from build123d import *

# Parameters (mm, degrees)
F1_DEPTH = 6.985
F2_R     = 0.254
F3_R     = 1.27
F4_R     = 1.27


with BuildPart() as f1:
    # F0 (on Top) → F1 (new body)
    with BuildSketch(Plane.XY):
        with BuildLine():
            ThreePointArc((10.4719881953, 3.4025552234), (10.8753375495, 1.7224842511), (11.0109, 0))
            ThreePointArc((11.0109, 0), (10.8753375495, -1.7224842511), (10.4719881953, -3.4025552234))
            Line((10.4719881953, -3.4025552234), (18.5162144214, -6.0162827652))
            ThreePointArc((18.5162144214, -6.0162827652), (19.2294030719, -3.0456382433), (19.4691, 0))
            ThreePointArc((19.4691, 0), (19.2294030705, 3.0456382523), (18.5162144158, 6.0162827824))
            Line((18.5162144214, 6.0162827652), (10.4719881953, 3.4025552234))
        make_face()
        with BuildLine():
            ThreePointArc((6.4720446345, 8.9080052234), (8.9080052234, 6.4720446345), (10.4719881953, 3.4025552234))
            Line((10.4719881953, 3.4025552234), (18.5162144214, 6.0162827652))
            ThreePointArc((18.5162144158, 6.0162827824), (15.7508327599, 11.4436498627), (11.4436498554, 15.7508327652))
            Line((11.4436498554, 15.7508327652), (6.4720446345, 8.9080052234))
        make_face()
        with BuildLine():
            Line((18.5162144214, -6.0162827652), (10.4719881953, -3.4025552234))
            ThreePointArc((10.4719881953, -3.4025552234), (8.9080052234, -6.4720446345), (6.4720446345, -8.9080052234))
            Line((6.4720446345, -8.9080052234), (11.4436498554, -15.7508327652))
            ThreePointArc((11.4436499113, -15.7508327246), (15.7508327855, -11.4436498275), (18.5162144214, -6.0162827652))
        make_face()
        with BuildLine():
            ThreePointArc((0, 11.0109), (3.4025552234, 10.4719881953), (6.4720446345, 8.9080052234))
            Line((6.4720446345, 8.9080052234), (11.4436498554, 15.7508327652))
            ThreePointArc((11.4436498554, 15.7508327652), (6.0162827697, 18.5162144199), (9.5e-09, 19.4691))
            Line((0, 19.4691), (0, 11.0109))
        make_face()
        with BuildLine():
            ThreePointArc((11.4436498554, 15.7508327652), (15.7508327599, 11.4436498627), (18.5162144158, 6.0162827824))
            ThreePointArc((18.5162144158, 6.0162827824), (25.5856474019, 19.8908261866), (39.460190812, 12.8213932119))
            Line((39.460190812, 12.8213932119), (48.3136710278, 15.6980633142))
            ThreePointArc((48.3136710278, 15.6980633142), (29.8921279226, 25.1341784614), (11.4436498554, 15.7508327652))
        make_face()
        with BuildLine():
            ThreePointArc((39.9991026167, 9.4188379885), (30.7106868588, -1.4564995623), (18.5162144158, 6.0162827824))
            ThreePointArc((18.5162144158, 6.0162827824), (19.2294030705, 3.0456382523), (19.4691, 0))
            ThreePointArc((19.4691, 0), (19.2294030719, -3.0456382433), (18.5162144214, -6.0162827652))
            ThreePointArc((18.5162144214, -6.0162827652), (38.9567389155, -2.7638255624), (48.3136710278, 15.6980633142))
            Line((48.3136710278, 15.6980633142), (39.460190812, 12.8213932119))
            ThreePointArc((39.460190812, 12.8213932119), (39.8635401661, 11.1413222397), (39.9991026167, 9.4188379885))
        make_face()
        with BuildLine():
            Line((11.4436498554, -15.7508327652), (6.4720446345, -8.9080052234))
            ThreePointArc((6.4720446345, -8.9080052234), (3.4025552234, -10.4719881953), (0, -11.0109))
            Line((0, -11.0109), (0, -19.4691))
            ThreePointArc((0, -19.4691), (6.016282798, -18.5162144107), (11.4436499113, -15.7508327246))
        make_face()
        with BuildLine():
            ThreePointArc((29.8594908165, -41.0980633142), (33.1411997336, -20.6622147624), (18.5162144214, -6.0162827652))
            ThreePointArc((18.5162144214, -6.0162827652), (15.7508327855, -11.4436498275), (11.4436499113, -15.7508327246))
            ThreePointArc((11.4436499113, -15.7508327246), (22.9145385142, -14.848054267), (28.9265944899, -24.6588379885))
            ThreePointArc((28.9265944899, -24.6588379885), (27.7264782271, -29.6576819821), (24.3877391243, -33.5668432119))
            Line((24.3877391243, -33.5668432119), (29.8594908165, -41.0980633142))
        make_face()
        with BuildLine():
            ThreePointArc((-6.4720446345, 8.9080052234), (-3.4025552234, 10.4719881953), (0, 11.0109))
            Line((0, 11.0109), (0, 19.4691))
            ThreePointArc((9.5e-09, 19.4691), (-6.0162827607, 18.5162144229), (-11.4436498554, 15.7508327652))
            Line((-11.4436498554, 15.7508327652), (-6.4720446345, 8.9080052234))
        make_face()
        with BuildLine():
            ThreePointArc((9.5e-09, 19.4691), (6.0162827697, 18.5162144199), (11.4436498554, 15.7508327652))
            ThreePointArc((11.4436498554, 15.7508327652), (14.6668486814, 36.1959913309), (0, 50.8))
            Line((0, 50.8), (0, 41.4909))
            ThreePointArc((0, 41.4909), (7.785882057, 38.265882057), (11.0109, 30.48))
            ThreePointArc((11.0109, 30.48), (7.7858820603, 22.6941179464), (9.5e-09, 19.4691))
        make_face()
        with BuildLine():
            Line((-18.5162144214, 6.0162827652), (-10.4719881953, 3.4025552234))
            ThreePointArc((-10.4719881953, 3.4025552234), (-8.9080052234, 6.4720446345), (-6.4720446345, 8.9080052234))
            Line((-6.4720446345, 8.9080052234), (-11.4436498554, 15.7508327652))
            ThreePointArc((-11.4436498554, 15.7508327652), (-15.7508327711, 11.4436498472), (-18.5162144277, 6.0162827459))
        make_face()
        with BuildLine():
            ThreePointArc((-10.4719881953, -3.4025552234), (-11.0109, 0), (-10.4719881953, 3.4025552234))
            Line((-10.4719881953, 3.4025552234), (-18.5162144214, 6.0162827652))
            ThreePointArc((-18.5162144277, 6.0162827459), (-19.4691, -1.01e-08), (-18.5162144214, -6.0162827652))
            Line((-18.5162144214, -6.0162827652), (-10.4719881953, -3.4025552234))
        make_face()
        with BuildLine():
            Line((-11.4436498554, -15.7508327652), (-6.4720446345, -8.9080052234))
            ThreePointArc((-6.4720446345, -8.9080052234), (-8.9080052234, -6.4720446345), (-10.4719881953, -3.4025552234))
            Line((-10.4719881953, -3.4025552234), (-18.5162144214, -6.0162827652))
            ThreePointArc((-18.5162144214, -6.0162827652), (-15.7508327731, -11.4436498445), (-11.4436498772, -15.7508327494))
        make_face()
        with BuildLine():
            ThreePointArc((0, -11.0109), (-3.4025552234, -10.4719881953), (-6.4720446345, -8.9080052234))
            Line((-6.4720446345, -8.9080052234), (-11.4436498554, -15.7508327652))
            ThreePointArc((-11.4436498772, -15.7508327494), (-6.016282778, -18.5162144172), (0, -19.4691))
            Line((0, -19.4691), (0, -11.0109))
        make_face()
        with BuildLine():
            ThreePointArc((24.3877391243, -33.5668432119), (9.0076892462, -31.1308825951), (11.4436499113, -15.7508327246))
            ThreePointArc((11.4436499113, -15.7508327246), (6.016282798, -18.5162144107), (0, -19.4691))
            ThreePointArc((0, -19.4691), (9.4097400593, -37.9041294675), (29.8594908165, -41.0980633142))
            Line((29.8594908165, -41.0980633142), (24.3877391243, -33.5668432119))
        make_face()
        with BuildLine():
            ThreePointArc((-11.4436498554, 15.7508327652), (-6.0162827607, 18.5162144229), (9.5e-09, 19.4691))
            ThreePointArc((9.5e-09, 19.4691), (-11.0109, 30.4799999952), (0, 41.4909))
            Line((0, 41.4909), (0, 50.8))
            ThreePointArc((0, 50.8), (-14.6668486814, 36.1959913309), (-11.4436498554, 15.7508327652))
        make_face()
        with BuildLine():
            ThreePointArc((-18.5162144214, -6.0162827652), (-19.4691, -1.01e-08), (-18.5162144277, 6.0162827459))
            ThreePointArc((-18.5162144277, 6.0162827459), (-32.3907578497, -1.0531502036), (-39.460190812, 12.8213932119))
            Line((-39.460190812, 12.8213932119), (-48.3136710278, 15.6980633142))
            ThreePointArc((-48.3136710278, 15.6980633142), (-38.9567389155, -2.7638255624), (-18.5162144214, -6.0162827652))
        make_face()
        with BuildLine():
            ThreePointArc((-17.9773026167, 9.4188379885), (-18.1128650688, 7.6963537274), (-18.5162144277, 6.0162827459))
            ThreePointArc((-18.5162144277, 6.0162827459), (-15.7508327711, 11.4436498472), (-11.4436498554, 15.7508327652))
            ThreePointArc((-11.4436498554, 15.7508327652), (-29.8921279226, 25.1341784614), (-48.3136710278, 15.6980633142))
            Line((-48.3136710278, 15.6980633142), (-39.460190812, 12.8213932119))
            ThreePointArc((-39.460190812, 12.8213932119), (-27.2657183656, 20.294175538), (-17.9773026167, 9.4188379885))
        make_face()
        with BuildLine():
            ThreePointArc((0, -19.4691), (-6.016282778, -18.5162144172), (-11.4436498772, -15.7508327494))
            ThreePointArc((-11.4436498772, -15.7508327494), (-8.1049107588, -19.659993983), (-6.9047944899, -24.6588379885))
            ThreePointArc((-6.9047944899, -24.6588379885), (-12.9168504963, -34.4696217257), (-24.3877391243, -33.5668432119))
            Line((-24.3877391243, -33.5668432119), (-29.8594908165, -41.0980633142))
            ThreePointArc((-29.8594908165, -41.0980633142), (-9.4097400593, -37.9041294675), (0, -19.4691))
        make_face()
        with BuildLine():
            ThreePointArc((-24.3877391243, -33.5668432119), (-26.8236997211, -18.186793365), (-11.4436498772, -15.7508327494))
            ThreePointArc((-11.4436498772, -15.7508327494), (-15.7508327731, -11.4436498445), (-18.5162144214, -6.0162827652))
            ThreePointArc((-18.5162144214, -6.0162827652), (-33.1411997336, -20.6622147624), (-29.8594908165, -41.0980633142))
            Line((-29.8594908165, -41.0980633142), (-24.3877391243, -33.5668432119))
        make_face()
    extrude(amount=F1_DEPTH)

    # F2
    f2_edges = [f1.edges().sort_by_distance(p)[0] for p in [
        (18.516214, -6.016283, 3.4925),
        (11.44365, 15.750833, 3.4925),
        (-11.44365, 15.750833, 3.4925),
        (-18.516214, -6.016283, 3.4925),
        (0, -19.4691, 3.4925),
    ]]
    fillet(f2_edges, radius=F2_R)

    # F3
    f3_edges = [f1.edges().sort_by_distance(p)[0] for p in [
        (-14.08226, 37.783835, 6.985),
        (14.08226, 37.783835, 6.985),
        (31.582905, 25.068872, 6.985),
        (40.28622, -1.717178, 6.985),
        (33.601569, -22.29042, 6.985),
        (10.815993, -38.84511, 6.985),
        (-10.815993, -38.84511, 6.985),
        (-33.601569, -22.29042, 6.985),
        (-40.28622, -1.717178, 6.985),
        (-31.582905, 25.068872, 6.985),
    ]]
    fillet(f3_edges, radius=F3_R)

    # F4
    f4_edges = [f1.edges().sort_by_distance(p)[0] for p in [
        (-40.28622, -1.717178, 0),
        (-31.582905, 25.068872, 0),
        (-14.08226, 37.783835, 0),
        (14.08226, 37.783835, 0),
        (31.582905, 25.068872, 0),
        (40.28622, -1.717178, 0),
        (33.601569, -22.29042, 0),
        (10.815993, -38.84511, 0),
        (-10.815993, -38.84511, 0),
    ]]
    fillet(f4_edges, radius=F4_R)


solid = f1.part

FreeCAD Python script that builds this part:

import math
import FreeCAD as App
import Part
import Sketcher
Q = App.Units.Quantity


def edges_at(feature, points):
    """Names of the edges that pass closest to the given points."""
    edges = feature.Shape.Edges
    near = lambda p: min(range(len(edges)), key=lambda i: edges[i].distToShape(Part.Vertex(*p))[0])
    return sorted({f"Edge{near(p) + 1}" for p in points})

doc = App.newDocument("Part")
body = doc.addObject("PartDesign::Body", "Body")

# Sketch on XY plane
sketch1 = body.newObject("Sketcher::SketchObject", "Sketch")
sketch1.AttachmentSupport = (doc.getObject("XY_Plane"), [""])
sketch1.MapMode = "FlatFace"
sketch1.addGeometry([
    Part.ArcOfCircle(Part.Circle(App.Vector(11.481967, -27.66547, 0), App.Vector(0, 0, 1), 22.763303), math.radians(-36.164007), math.radians(72)),  # 0
    Part.ArcOfCircle(Part.Circle(App.Vector(25.550462, 15.632904, 0), App.Vector(0, 0, 1), 22.763303), math.radians(-108), math.radians(0.164007)),  # 1
    Part.ArcOfCircle(Part.Circle(App.Vector(29.859548, 2.370899, 0), App.Vector(0, 0, 1), 22.763303), math.radians(35.835993), math.radians(144)),  # 2
    Part.ArcOfCircle(Part.Circle(App.Vector(-6.972249, 29.130766, 0), App.Vector(0, 0, 1), 22.763303), math.radians(-36), math.radians(72.164007)),  # 3
    Part.ArcOfCircle(Part.Circle(App.Vector(6.972249, 29.130766, 0), App.Vector(0, 0, 1), 22.763303), math.radians(107.835993), math.radians(216)),  # 4
    Part.ArcOfCircle(Part.Circle(App.Vector(-29.859548, 2.370899, 0), App.Vector(0, 0, 1), 22.763303), math.radians(36), math.radians(144.164007)),  # 5
    Part.ArcOfCircle(Part.Circle(App.Vector(-25.550462, 15.632904, 0), App.Vector(0, 0, 1), 22.763303), math.radians(179.835993), math.radians(288)),  # 6
    Part.ArcOfCircle(Part.Circle(App.Vector(-11.481967, -27.66547, 0), App.Vector(0, 0, 1), 22.763303), math.radians(108), math.radians(216.164007)),  # 7
    Part.ArcOfCircle(Part.Circle(App.Vector(-22.763303, -19.4691, 0), App.Vector(0, 0, 1), 22.763303), math.radians(-108.164007), math.radians(0)),  # 8
    Part.ArcOfCircle(Part.Circle(App.Vector(22.763303, -19.4691, 0), App.Vector(0, 0, 1), 22.763303), math.radians(180), math.radians(288.164007)),  # 9
    Part.ArcOfCircle(Part.Circle(App.Vector(0, 0, 0), App.Vector(0, 0, 1), 11.0109), math.radians(0), math.radians(18)),  # 10
    Part.ArcOfCircle(Part.Circle(App.Vector(0, 0, 0), App.Vector(0, 0, 1), 11.0109), math.radians(-18), math.radians(0)),  # 11
    Part.ArcOfCircle(Part.Circle(App.Vector(0, 0, 0), App.Vector(0, 0, 1), 11.0109), math.radians(-54), math.radians(-18)),  # 12
    Part.ArcOfCircle(Part.Circle(App.Vector(0, 0, 0), App.Vector(0, 0, 1), 11.0109), math.radians(-90), math.radians(-54)),  # 13
    Part.ArcOfCircle(Part.Circle(App.Vector(0, 0, 0), App.Vector(0, 0, 1), 11.0109), math.radians(-126), math.radians(-90)),  # 14
    Part.ArcOfCircle(Part.Circle(App.Vector(0, 0, 0), App.Vector(0, 0, 1), 11.0109), math.radians(-162), math.radians(-126)),  # 15
    Part.ArcOfCircle(Part.Circle(App.Vector(0, 0, 0), App.Vector(0, 0, 1), 11.0109), math.radians(162), math.radians(198)),  # 16
    Part.ArcOfCircle(Part.Circle(App.Vector(0, 0, 0), App.Vector(0, 0, 1), 11.0109), math.radians(126), math.radians(162)),  # 17
    Part.ArcOfCircle(Part.Circle(App.Vector(0, 0, 0), App.Vector(0, 0, 1), 11.0109), math.radians(90), math.radians(126)),  # 18
    Part.ArcOfCircle(Part.Circle(App.Vector(0, 0, 0), App.Vector(0, 0, 1), 11.0109), math.radians(54), math.radians(90)),  # 19
    Part.ArcOfCircle(Part.Circle(App.Vector(0, 0, 0), App.Vector(0, 0, 1), 11.0109), math.radians(18), math.radians(54)),  # 20
    Part.ArcOfCircle(Part.Circle(App.Vector(17.915694, -24.658838, 0), App.Vector(0, 0, 1), 11.0109), math.radians(0), math.radians(126)),  # 21
    Part.ArcOfCircle(Part.Circle(App.Vector(17.915694, -24.658838, 0), App.Vector(0, 0, 1), 11.0109), math.radians(-54), math.radians(0)),  # 22
    Part.ArcOfCircle(Part.Circle(App.Vector(17.915694, -24.658838, 0), App.Vector(0, 0, 1), 11.0109), math.radians(126), math.radians(306)),  # 23
    Part.ArcOfCircle(Part.Circle(App.Vector(-17.915694, -24.658838, 0), App.Vector(0, 0, 1), 11.0109), math.radians(0), math.radians(54)),  # 24
    Part.ArcOfCircle(Part.Circle(App.Vector(-17.915694, -24.658838, 0), App.Vector(0, 0, 1), 11.0109), math.radians(-126), math.radians(0)),  # 25
    Part.ArcOfCircle(Part.Circle(App.Vector(-17.915694, -24.658838, 0), App.Vector(0, 0, 1), 11.0109), math.radians(54), math.radians(234)),  # 26
    Part.ArcOfCircle(Part.Circle(App.Vector(-28.988203, 9.418838, 0), App.Vector(0, 0, 1), 11.0109), math.radians(162), math.radians(342)),  # 27
    Part.ArcOfCircle(Part.Circle(App.Vector(-28.988203, 9.418838, 0), App.Vector(0, 0, 1), 11.0109), math.radians(0), math.radians(162)),  # 28
    Part.ArcOfCircle(Part.Circle(App.Vector(-28.988203, 9.418838, 0), App.Vector(0, 0, 1), 11.0109), math.radians(-18), math.radians(0)),  # 29
    Part.ArcOfCircle(Part.Circle(App.Vector(0, 30.48, 0), App.Vector(0, 0, 1), 11.0109), math.radians(0), math.radians(90)),  # 30
    Part.ArcOfCircle(Part.Circle(App.Vector(0, 30.48, 0), App.Vector(0, 0, 1), 11.0109), math.radians(-90), math.radians(0)),  # 31
    Part.ArcOfCircle(Part.Circle(App.Vector(0, 30.48, 0), App.Vector(0, 0, 1), 11.0109), math.radians(90), math.radians(270)),  # 32
    Part.ArcOfCircle(Part.Circle(App.Vector(28.988203, 9.418838, 0), App.Vector(0, 0, 1), 11.0109), math.radians(18), math.radians(198)),  # 33
    Part.ArcOfCircle(Part.Circle(App.Vector(28.988203, 9.418838, 0), App.Vector(0, 0, 1), 11.0109), math.radians(0), math.radians(18)),  # 34
    Part.ArcOfCircle(Part.Circle(App.Vector(28.988203, 9.418838, 0), App.Vector(0, 0, 1), 11.0109), math.radians(-162), math.radians(0)),  # 35
], False)
sketch1.addConstraint([
    Sketcher.Constraint("Tangent", 0, 2, 1, 1),
    Sketcher.Constraint("Coincident", 1, 2, 2, 1),
    Sketcher.Constraint("Tangent", 2, 2, 3, 1),
    Sketcher.Constraint("Coincident", 3, 2, 4, 1),
    Sketcher.Constraint("Tangent", 4, 2, 5, 1),
    Sketcher.Constraint("Coincident", 5, 2, 6, 1),
    Sketcher.Constraint("Tangent", 6, 2, 7, 1),
    Sketcher.Constraint("Coincident", 7, 2, 8, 1),
    Sketcher.Constraint("Tangent", 8, 2, 9, 1),
    Sketcher.Constraint("Coincident", 9, 2, 0, 1),
    Sketcher.Constraint("Tangent", 10, 1, 11, 2),
    Sketcher.Constraint("Tangent", 11, 1, 12, 2),
    Sketcher.Constraint("Tangent", 12, 1, 13, 2),
    Sketcher.Constraint("Tangent", 13, 1, 14, 2),
    Sketcher.Constraint("Tangent", 14, 1, 15, 2),
    Sketcher.Constraint("Tangent", 15, 1, 16, 2),
    Sketcher.Constraint("Tangent", 16, 1, 17, 2),
    Sketcher.Constraint("Tangent", 17, 1, 18, 2),
    Sketcher.Constraint("Tangent", 18, 1, 19, 2),
    Sketcher.Constraint("Tangent", 19, 1, 20, 2),
    Sketcher.Constraint("Tangent", 20, 1, 10, 2),
    Sketcher.Constraint("Tangent", 21, 1, 22, 2),
    Sketcher.Constraint("Tangent", 22, 1, 23, 2),
    Sketcher.Constraint("Tangent", 23, 1, 21, 2),
    Sketcher.Constraint("Tangent", 24, 1, 25, 2),
    Sketcher.Constraint("Tangent", 25, 1, 26, 2),
    Sketcher.Constraint("Tangent", 26, 1, 24, 2),
    Sketcher.Constraint("Tangent", 27, 1, 28, 2),
    Sketcher.Constraint("Tangent", 28, 1, 29, 2),
    Sketcher.Constraint("Tangent", 29, 1, 27, 2),
    Sketcher.Constraint("Tangent", 30, 1, 31, 2),
    Sketcher.Constraint("Tangent", 31, 1, 32, 2),
    Sketcher.Constraint("Tangent", 32, 1, 30, 2),
    Sketcher.Constraint("Tangent", 33, 1, 34, 2),
    Sketcher.Constraint("Tangent", 34, 1, 35, 2),
    Sketcher.Constraint("Tangent", 35, 1, 33, 2),
    Sketcher.Constraint("Coincident", 10, 3, -1, 1),
    Sketcher.Constraint("Coincident", 12, 3, -1, 1),
    Sketcher.Constraint("Coincident", 14, 3, -1, 1),
    Sketcher.Constraint("Coincident", 16, 3, -1, 1),
    Sketcher.Constraint("Coincident", 18, 3, -1, 1),
    Sketcher.Constraint("Equal", 0, 1),
    Sketcher.Constraint("Equal", 1, 2),
    Sketcher.Constraint("Equal", 2, 3),
    Sketcher.Constraint("Equal", 3, 4),
    Sketcher.Constraint("Equal", 4, 5),
    Sketcher.Constraint("Equal", 5, 6),
    Sketcher.Constraint("Equal", 6, 7),
    Sketcher.Constraint("Equal", 7, 8),
    Sketcher.Constraint("Equal", 8, 9),
    Sketcher.Constraint("Equal", 20, 21),
    Sketcher.Constraint("Equal", 23, 24),
    Sketcher.Constraint("Equal", 26, 27),
    Sketcher.Constraint("Equal", 29, 30),
    Sketcher.Constraint("Equal", 32, 33),
    Sketcher.Constraint("Symmetric", 4, 2, 23, 1, -1, 1),
    Sketcher.Constraint("Symmetric", 2, 2, 26, 1, -1, 1),
    Sketcher.Constraint("Symmetric", 0, 2, 29, 1, -1, 1),
    Sketcher.Constraint("Symmetric", 8, 2, 31, 1, -1, 1),
    Sketcher.Constraint("Symmetric", 6, 2, 35, 1, -1, 1),
    Sketcher.Constraint("Symmetric", 3, 3, 4, 3, -2),
    Sketcher.Constraint("Symmetric", 1, 3, 6, 3, -2),
    Sketcher.Constraint("Symmetric", 8, 3, 9, 3, -2),
    Sketcher.Constraint("Symmetric", 21, 3, 24, 3, -2),
    Sketcher.Constraint("Symmetric", 27, 3, 33, 3, -2),
    Sketcher.Constraint("PointOnObject", 30, 3, -2),
    Sketcher.Constraint("PointOnObject", 10, 1, -1),
    Sketcher.Constraint("PointOnObject", 13, 1, -2),
    Sketcher.Constraint("PointOnObject", 18, 1, -2),
    Sketcher.Constraint("PointOnObject", 32, 1, -2),
    Sketcher.Constraint("Horizontal", 12, 1, 14, 1),
    Sketcher.Constraint("Horizontal", 11, 1, 15, 1),
    Sketcher.Constraint("Horizontal", 17, 1, 19, 1),
    Sketcher.Constraint("Horizontal", 16, 1, 20, 1),
    Sketcher.Constraint("Horizontal", 26, 3, 21, 1),
    Sketcher.Constraint("Horizontal", 21, 1, 24, 1),
    Sketcher.Constraint("Horizontal", 22, 1, 25, 1),
    Sketcher.Constraint("Horizontal", 35, 3, 28, 1),
    Sketcher.Constraint("Horizontal", 32, 3, 30, 1),
    Sketcher.Constraint("Horizontal", 27, 1, 33, 1),
    Sketcher.Constraint("Horizontal", 28, 1, 34, 1),
    Sketcher.Constraint("Vertical", 15, 1, 16, 1),
    Sketcher.Constraint("Vertical", 14, 1, 17, 1),
    Sketcher.Constraint("DistanceY", -1, 1, 3, 2, Q("2 in")),
    Sketcher.Constraint("DistanceY", -1, 1, 30, 3, Q("1.2 in")),
    Sketcher.Constraint("Radius", 10, Q("0.4335 in")),
    Sketcher.Constraint("Radius", 0, Q("22.763303 mm")),
    Sketcher.Constraint("DistanceY", -1, 1, 2, 3, Q("2.370899 mm")),
    Sketcher.Constraint("DistanceY", 0, 3, -1, 1, Q("27.66547 mm")),
    Sketcher.Constraint("DistanceX", -1, 1, 1, 3, Q("25.550462 mm")),
    Sketcher.Constraint("DistanceX", -1, 1, 2, 3, Q("29.859548 mm")),
    Sketcher.Constraint("DistanceX", 7, 2, -1, 1, Q("29.859491 mm")),
    Sketcher.Constraint("DistanceX", -1, 1, 11, 1, Q("10.471988 mm")),
    Sketcher.Constraint("DistanceX", -1, 1, 22, 1, Q("24.387739 mm")),
    Sketcher.Constraint("DistanceX", 27, 1, -1, 1, Q("39.460191 mm")),
    Sketcher.Constraint("DistanceX", -1, 1, 21, 3, Q("17.915694 mm")),
    Sketcher.Constraint("DistanceX", 27, 3, -1, 1, Q("28.988203 mm")),
    Sketcher.Constraint("DistanceX", -1, 1, 12, 1, Q("6.472045 mm")),
])
pad1 = body.newObject("PartDesign::Pad", "Pad")
pad1.Profile = sketch1
pad1.Length = Q("0.275 in")
doc.recompute()

fillet = body.newObject("PartDesign::Fillet", "Fillet")
fillet.Base = (pad1, edges_at(pad1, [
    (18.516, -6.016, 3.493),
    (11.444, 15.751, 3.493),
    (-11.444, 15.751, 3.493),
    (-18.516, -6.016, 3.493),
    (0, -19.469, 3.493),
]))
fillet.Radius = Q("0.01 in")
doc.recompute()

fillet2 = body.newObject("PartDesign::Fillet", "Fillet001")
fillet2.Base = (fillet, edges_at(fillet, [
    (-14.082, 37.784, 6.985),
    (14.082, 37.784, 6.985),
    (31.583, 25.069, 6.985),
    (40.286, -1.717, 6.985),
    (33.602, -22.29, 6.985),
    (10.816, -38.845, 6.985),
    (-10.816, -38.845, 6.985),
    (-33.602, -22.29, 6.985),
    (-40.286, -1.717, 6.985),
    (-31.583, 25.069, 6.985),
]))
fillet2.Radius = Q("0.05 in")
doc.recompute()

fillet3 = body.newObject("PartDesign::Fillet", "Fillet002")
fillet3.Base = (fillet2, edges_at(fillet2, [
    (-40.286, -1.717, 0),
    (-31.583, 25.069, 0),
    (-14.082, 37.784, 0),
    (14.082, 37.784, 0),
    (31.583, 25.069, 0),
    (40.286, -1.717, 0),
    (33.602, -22.29, 0),
    (10.816, -38.845, 0),
    (-10.816, -38.845, 0),
]))
fillet3.Radius = Q("0.05 in")

doc.recompute()
